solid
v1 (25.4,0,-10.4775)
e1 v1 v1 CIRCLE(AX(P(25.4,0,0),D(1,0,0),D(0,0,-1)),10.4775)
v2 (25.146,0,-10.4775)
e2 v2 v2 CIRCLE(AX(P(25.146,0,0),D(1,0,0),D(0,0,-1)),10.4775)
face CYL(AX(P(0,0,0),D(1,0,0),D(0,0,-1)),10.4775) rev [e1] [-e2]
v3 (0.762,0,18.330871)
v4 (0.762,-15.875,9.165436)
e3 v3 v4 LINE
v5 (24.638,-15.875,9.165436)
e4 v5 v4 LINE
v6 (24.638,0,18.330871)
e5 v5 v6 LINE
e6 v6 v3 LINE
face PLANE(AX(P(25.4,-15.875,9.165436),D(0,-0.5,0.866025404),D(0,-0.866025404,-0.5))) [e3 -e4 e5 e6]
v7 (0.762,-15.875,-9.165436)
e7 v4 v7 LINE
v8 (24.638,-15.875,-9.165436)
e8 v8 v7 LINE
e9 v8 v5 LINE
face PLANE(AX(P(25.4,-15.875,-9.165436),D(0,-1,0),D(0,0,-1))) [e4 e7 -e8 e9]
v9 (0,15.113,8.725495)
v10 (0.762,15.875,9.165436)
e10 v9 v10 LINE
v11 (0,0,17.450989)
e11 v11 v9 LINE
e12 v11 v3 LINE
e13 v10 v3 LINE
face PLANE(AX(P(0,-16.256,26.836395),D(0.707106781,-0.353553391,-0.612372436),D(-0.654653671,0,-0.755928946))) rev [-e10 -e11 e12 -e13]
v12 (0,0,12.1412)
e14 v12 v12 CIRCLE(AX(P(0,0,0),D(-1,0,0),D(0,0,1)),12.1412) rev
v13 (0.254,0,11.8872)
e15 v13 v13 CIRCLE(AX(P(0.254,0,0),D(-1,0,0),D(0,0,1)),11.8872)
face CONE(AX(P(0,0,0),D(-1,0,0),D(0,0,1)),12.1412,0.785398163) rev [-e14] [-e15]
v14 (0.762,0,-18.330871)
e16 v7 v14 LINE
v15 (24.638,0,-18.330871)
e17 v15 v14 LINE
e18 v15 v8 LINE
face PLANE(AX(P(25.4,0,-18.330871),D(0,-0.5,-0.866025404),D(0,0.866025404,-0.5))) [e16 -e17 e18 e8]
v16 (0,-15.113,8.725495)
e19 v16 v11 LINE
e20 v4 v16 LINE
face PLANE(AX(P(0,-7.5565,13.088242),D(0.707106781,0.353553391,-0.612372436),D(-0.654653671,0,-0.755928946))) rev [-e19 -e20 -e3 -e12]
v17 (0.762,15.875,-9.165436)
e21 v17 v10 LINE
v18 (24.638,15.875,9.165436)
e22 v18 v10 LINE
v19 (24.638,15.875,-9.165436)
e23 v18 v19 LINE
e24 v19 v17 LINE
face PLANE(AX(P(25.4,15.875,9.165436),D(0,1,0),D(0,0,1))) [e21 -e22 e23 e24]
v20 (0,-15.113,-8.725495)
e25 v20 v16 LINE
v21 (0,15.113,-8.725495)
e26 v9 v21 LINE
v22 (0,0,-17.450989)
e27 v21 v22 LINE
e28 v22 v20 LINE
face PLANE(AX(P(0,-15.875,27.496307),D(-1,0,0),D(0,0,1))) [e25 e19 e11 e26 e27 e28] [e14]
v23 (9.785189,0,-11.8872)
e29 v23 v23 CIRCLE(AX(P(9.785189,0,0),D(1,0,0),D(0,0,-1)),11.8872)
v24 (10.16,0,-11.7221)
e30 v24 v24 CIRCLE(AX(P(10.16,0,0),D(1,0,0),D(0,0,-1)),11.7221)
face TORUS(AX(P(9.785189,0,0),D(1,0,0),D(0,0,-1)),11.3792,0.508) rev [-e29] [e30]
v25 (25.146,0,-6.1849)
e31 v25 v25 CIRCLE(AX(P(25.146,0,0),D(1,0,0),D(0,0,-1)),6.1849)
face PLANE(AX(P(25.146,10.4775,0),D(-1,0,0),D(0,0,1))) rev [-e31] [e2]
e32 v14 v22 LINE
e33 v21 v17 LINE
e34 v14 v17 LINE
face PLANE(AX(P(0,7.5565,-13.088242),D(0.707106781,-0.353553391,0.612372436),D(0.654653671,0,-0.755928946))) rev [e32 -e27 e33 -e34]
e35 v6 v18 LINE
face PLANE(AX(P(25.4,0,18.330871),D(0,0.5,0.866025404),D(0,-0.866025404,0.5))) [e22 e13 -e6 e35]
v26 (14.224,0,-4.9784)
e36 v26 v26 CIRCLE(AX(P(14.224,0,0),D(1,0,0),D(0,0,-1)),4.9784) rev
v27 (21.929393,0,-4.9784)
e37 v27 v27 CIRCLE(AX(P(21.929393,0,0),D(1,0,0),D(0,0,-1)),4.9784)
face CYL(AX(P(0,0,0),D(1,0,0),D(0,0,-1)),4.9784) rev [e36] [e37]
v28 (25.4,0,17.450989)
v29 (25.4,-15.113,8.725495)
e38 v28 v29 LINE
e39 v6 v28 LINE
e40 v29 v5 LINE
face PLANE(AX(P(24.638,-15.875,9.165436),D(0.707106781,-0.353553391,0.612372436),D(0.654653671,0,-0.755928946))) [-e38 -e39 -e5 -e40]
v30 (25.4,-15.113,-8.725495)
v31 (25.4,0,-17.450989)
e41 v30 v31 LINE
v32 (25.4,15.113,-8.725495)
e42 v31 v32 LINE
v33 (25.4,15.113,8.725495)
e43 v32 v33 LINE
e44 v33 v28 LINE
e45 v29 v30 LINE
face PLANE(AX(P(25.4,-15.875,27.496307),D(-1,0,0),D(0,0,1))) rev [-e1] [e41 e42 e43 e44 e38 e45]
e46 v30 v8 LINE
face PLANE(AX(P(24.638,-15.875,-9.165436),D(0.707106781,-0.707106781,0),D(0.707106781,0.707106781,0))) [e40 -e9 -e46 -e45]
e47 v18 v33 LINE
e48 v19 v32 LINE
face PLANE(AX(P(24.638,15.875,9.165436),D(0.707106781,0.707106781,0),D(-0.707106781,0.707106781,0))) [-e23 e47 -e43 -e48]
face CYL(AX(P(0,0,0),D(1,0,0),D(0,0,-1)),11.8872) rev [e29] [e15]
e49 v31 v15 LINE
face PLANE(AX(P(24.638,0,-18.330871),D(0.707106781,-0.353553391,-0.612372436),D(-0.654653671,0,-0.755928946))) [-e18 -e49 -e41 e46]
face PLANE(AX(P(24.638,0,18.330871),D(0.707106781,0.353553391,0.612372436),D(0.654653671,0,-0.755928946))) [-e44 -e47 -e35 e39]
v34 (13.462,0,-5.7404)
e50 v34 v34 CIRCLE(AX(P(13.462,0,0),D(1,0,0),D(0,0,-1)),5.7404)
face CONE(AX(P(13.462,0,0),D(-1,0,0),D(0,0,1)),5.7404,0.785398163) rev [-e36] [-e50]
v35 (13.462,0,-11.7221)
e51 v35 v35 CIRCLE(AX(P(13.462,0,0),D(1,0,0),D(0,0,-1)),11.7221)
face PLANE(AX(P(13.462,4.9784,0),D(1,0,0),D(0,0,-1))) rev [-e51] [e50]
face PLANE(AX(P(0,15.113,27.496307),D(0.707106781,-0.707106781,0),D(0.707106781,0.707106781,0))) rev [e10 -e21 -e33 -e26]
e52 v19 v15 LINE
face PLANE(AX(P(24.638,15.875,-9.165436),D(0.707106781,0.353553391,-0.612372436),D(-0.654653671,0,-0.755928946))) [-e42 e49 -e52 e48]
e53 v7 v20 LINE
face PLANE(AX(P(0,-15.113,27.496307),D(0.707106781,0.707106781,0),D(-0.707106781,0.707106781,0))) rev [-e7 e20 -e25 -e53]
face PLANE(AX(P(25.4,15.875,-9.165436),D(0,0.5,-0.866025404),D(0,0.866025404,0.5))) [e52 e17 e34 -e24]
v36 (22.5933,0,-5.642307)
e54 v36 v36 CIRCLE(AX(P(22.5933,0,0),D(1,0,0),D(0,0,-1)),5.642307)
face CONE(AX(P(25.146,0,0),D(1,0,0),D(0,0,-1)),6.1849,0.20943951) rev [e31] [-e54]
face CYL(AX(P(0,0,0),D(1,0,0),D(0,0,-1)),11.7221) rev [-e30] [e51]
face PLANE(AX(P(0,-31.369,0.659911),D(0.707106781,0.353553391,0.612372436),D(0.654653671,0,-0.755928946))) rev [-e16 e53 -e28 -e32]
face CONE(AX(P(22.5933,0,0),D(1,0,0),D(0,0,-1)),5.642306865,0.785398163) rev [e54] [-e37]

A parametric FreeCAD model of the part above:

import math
import FreeCAD as App
import Part
import Sketcher
from FreeCAD import Vector
Q = App.Units.Quantity


def edges_at(feature, points):
    """Names of the edges that pass closest to the given points."""
    edges = feature.Shape.Edges
    near = lambda p: min(range(len(edges)), key=lambda i: edges[i].distToShape(Part.Vertex(*p))[0])
    return sorted({f"Edge{near(p) + 1}" for p in points})

doc = App.newDocument("Part")
body = doc.addObject("PartDesign::Body", "Body")

# Sketch on YZ plane
sketch1 = body.newObject("Sketcher::SketchObject", "Sketch")
sketch1.AttachmentSupport = (doc.getObject("YZ_Plane"), [""])
sketch1.MapMode = "FlatFace"
sketch1.addGeometry(Part.LineSegment(Vector(-16, 9, 0), Vector(0, 18, 0)), False)
sketch1.addGeometry(Part.LineSegment(Vector(0, 18, 0), Vector(16, 9, 0)), False)
sketch1.addGeometry(Part.LineSegment(Vector(16, 9, 0), Vector(16, -9, 0)), False)
sketch1.addGeometry(Part.LineSegment(Vector(16, -9, 0), Vector(0, -18, 0)), False)
sketch1.addGeometry(Part.LineSegment(Vector(0, -18, 0), Vector(-16, -9, 0)), False)
sketch1.addGeometry(Part.LineSegment(Vector(-16, -9, 0), Vector(-16, 9, 0)), False)
sketch1.addConstraint(Sketcher.Constraint("Coincident", 0, 2, 1, 1))
sketch1.addConstraint(Sketcher.Constraint("Coincident", 1, 2, 2, 1))
sketch1.addConstraint(Sketcher.Constraint("Coincident", 2, 2, 3, 1))
sketch1.addConstraint(Sketcher.Constraint("Coincident", 3, 2, 4, 1))
sketch1.addConstraint(Sketcher.Constraint("Coincident", 4, 2, 5, 1))
sketch1.addConstraint(Sketcher.Constraint("Coincident", 5, 2, 0, 1))
sketch1.addConstraint(Sketcher.Constraint("Vertical", 2))
sketch1.addConstraint(Sketcher.Constraint("Vertical", 5))
sketch1.addConstraint(Sketcher.Constraint("Symmetric", 0, 2, 3, 2, -1, 1))
sketch1.addConstraint(Sketcher.Constraint("Symmetric", 1, 2, 4, 2, -1, 1))
sketch1.addConstraint(Sketcher.Constraint("PointOnObject", 0, 2, -2))
sketch1.addConstraint(Sketcher.Constraint("Parallel", 0, 3))
sketch1.addConstraint(Sketcher.Constraint("Horizontal", 2, 2, 4, 2))
sketch1.addConstraint(Sketcher.Constraint("Angle", 0, Q("30 deg")))
sketch1.addConstraint(Sketcher.Constraint("DistanceX", 4, 2, 2, 2, Q("1.25 in")))
sketch1.addConstraint(Sketcher.Constraint("DistanceY", 2, 2, 2, 1, 18.330871))
pad1 = body.newObject("PartDesign::Pad", "Pad")
pad1.Profile = sketch1
pad1.Length = Q("1 in")

# Sketch on XY plane
sketch2 = body.newObject("Sketcher::SketchObject", "Sketch001")
sketch2.AttachmentSupport = (doc.getObject("XY_Plane"), [""])
sketch2.MapMode = "FlatFace"
sketch2.addGeometry(Part.LineSegment(Vector(0, 11.89, 0), Vector(0, 0, 0)), False)
sketch2.addGeometry(Part.LineSegment(Vector(0, 0, 0), Vector(25.4, 0, 0)), False)
sketch2.addGeometry(Part.LineSegment(Vector(25.4, 0, 0), Vector(25.4, 10.48, 0)), False)
sketch2.addGeometry(Part.LineSegment(Vector(25.4, 10.48, 0), Vector(25.15, 10.48, 0)), False)
sketch2.addGeometry(Part.LineSegment(Vector(25.15, 10.48, 0), Vector(25.15, 6.18, 0)), False)
sketch2.addGeometry(Part.LineSegment(Vector(25.15, 6.18, 0), Vector(22.59, 5.64, 0)), False)
sketch2.addGeometry(Part.LineSegment(Vector(22.59, 5.64, 0), Vector(21.93, 4.98, 0)), False)
sketch2.addGeometry(Part.LineSegment(Vector(21.93, 4.98, 0), Vector(13.46, 4.98, 0)), False)
sketch2.addGeometry(Part.LineSegment(Vector(13.46, 4.98, 0), Vector(13.46, 11.72, 0)), False)
sketch2.addGeometry(Part.LineSegment(Vector(13.46, 11.72, 0), Vector(10.16, 11.72, 0)), False)
sketch2.addGeometry(Part.ArcOfCircle(Part.Circle(Vector(9.79, 11.38, 0), Vector(0, 0, 1), 0.51), math.radians(42), math.radians(90)), False)
sketch2.addGeometry(Part.LineSegment(Vector(9.79, 11.89, 0), Vector(0, 11.89, 0)), False)
sketch2.addConstraint(Sketcher.Constraint("Coincident", 0, 2, 1, 1))
sketch2.addConstraint(Sketcher.Constraint("Coincident", 1, 2, 2, 1))
sketch2.addConstraint(Sketcher.Constraint("Coincident", 2, 2, 3, 1))
sketch2.addConstraint(Sketcher.Constraint("Coincident", 3, 2, 4, 1))
sketch2.addConstraint(Sketcher.Constraint("Coincident", 4, 2, 5, 1))
sketch2.addConstraint(Sketcher.Constraint("Coincident", 5, 2, 6, 1))
sketch2.addConstraint(Sketcher.Constraint("Coincident", 6, 2, 7, 1))
sketch2.addConstraint(Sketcher.Constraint("Coincident", 7, 2, 8, 1))
sketch2.addConstraint(Sketcher.Constraint("Coincident", 8, 2, 9, 1))
sketch2.addConstraint(Sketcher.Constraint("Coincident", 9, 2, 10, 1))
sketch2.addConstraint(Sketcher.Constraint("Tangent", 10, 2, 11, 1))
sketch2.addConstraint(Sketcher.Constraint("Coincident", 11, 2, 0, 1))
sketch2.addConstraint(Sketcher.Constraint("Vertical", 0))
sketch2.addConstraint(Sketcher.Constraint("Horizontal", 1))
sketch2.addConstraint(Sketcher.Constraint("Vertical", 2))
sketch2.addConstraint(Sketcher.Constraint("Horizontal", 3))
sketch2.addConstraint(Sketcher.Constraint("Vertical", 4))
sketch2.addConstraint(Sketcher.Constraint("Horizontal", 7))
sketch2.addConstraint(Sketcher.Constraint("Vertical", 8))
sketch2.addConstraint(Sketcher.Constraint("Horizontal", 9))
sketch2.addConstraint(Sketcher.Constraint("Horizontal", 11))
sketch2.addConstraint(Sketcher.Constraint("Coincident", 0, 2, -1, 1))
sketch2.addConstraint(Sketcher.Constraint("DistanceX", 1, 1, 1, 2, Q("1 in")))
sketch2.addConstraint(Sketcher.Constraint("Radius", 10, Q("0.02 in")))
sketch2.addConstraint(Sketcher.Constraint("Angle", 5, Q("-168 deg")))
sketch2.addConstraint(Sketcher.Constraint("Angle", 6, Q("-135 deg")))
sketch2.addConstraint(Sketcher.Constraint("DistanceX", 3, 2, 3, 1, Q("0.01 in")))
sketch2.addConstraint(Sketcher.Constraint("DistanceX", 9, 2, 9, 1, Q("0.13 in")))
sketch2.addConstraint(Sketcher.Constraint("DistanceX", -1, 1, 9, 2, Q("0.4 in")))
sketch2.addConstraint(Sketcher.Constraint("DistanceY", 0, 2, 0, 1, Q("0.468 in")))
sketch2.addConstraint(Sketcher.Constraint("DistanceY", 4, 2, 4, 1, Q("0.169 in")))
sketch2.addConstraint(Sketcher.Constraint("DistanceY", 2, 1, 2, 2, Q("0.4125 in")))
sketch2.addConstraint(Sketcher.Constraint("DistanceY", 8, 1, 8, 2, Q("0.2655 in")))
sketch2.addConstraint(Sketcher.Constraint("DistanceY", -1, 1, 6, 2, Q("0.196 in")))
sketch2.addConstraint(Sketcher.Constraint("DistanceX", -1, 1, 5, 2, Q("0.8895 in")))
groove = body.newObject("PartDesign::Groove", "Groove")
groove.Profile = sketch2
groove.ReferenceAxis = (sketch2, ["H_Axis"])
groove.Angle = 360
doc.recompute()

chamfer = body.newObject("PartDesign::Chamfer", "Chamfer")
chamfer.Base = (groove, edges_at(groove, [(0, 0, 11.887)]))
chamfer.Size = Q("0.01 in")
doc.recompute()

chamfer2 = body.newObject("PartDesign::Chamfer", "Chamfer001")
chamfer2.Base = (chamfer, edges_at(chamfer, [(13.462, 0, 4.978)]))
chamfer2.Size = Q("0.03 in")
doc.recompute()

chamfer3 = body.newObject("PartDesign::Chamfer", "Chamfer002")
chamfer3.Base = (chamfer2, edges_at(chamfer2, [
    (0, -7.938, -13.748),
    (0, 7.938, -13.748),
    (0, 15.875, 0),
    (0, 7.938, 13.748),
    (0, -7.938, 13.748),
    (0, -15.875, 0),
]))
chamfer3.Size = Q("0.03 in")
doc.recompute()

chamfer4 = body.newObject("PartDesign::Chamfer", "Chamfer003")
chamfer4.Base = (chamfer3, edges_at(chamfer3, [
    (25.4, 7.938, 13.748),
    (25.4, 15.875, 0),
    (25.4, 7.938, -13.748),
    (25.4, -7.938, -13.748),
    (25.4, -15.875, 0),
    (25.4, -7.938, 13.748),
]))
chamfer4.Size = Q("0.03 in")

doc.recompute()
